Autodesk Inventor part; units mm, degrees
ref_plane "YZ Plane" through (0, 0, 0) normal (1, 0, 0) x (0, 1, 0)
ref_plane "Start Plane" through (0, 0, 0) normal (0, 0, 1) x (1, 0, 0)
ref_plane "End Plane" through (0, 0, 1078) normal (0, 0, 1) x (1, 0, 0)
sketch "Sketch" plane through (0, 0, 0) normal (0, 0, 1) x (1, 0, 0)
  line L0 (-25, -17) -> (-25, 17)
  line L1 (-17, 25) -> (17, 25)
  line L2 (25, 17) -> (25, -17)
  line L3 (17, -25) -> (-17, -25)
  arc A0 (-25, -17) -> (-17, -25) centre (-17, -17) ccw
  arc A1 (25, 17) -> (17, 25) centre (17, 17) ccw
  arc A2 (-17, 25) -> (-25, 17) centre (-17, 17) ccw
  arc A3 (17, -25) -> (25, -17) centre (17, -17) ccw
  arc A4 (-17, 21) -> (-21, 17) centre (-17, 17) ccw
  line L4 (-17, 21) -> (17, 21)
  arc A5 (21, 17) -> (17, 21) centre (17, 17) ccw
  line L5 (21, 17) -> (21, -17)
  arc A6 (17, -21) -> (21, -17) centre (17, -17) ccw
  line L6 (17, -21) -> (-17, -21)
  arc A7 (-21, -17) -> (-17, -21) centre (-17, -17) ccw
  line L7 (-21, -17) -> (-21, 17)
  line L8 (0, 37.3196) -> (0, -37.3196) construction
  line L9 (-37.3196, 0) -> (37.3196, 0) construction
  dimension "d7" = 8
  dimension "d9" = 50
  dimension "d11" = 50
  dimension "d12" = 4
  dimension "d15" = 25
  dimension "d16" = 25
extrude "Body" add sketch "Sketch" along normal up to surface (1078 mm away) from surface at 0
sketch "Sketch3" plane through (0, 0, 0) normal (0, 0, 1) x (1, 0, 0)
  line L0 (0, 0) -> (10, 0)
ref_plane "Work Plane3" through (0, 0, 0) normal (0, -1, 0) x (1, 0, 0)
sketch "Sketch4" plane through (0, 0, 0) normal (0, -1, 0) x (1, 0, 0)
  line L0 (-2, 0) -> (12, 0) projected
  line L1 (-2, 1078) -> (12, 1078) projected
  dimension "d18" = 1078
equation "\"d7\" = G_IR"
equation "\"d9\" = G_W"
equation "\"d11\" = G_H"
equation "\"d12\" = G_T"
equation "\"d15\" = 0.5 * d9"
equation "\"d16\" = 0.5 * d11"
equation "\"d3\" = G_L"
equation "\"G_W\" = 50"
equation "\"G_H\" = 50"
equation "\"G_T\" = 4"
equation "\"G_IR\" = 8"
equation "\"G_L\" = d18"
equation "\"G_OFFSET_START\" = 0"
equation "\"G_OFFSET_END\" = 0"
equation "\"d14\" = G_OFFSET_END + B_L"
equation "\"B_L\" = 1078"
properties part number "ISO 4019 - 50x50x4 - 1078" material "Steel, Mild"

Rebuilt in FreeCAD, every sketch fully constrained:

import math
import FreeCAD as App
import Part
import Sketcher

doc = App.newDocument("Part")
body = doc.addObject("PartDesign::Body", "Body")

sketch1 = body.newObject("Sketcher::SketchObject", "Sketch")
sketch1.AttachmentSupport = (doc.getObject("XY_Plane"), [""])
sketch1.MapMode = "FlatFace"
sketch1.addGeometry([
    Part.LineSegment(App.Vector(-25, 17, 0), App.Vector(-25, -17, 0)),
    Part.ArcOfCircle(Part.Circle(App.Vector(-17, -17, 0), App.Vector(0, 0, 1), 8), math.radians(180), math.radians(270)),
    Part.LineSegment(App.Vector(-17, -25, 0), App.Vector(17, -25, 0)),
    Part.ArcOfCircle(Part.Circle(App.Vector(17, -17, 0), App.Vector(0, 0, 1), 8), math.radians(-90), math.radians(0)),
    Part.LineSegment(App.Vector(25, -17, 0), App.Vector(25, 17, 0)),
    Part.ArcOfCircle(Part.Circle(App.Vector(17, 17, 0), App.Vector(0, 0, 1), 8), math.radians(0), math.radians(90)),
    Part.LineSegment(App.Vector(17, 25, 0), App.Vector(-17, 25, 0)),
    Part.ArcOfCircle(Part.Circle(App.Vector(-17, 17, 0), App.Vector(0, 0, 1), 8), math.radians(90), math.radians(180)),
    Part.ArcOfCircle(Part.Circle(App.Vector(-17, 17, 0), App.Vector(0, 0, 1), 4), math.radians(90), math.radians(180)),
    Part.LineSegment(App.Vector(-17, 21, 0), App.Vector(17, 21, 0)),
    Part.ArcOfCircle(Part.Circle(App.Vector(17, 17, 0), App.Vector(0, 0, 1), 4), math.radians(0), math.radians(90)),
    Part.LineSegment(App.Vector(21, 17, 0), App.Vector(21, -17, 0)),
    Part.ArcOfCircle(Part.Circle(App.Vector(17, -17, 0), App.Vector(0, 0, 1), 4), math.radians(-90), math.radians(0)),
    Part.LineSegment(App.Vector(17, -21, 0), App.Vector(-17, -21, 0)),
    Part.ArcOfCircle(Part.Circle(App.Vector(-17, -17, 0), App.Vector(0, 0, 1), 4), math.radians(180), math.radians(270)),
    Part.LineSegment(App.Vector(-21, -17, 0), App.Vector(-21, 17, 0)),
], False)
sketch1.addConstraint([
    Sketcher.Constraint("Tangent", 0, 2, 1, 1),
    Sketcher.Constraint("Tangent", 1, 2, 2, 1),
    Sketcher.Constraint("Tangent", 2, 2, 3, 1),
    Sketcher.Constraint("Tangent", 3, 2, 4, 1),
    Sketcher.Constraint("Tangent", 4, 2, 5, 1),
    Sketcher.Constraint("Tangent", 5, 2, 6, 1),
    Sketcher.Constraint("Tangent", 6, 2, 7, 1),
    Sketcher.Constraint("Tangent", 7, 2, 0, 1),
    Sketcher.Constraint("Tangent", 8, 1, 9, 1),
    Sketcher.Constraint("Tangent", 9, 2, 10, 2),
    Sketcher.Constraint("Tangent", 10, 1, 11, 1),
    Sketcher.Constraint("Tangent", 11, 2, 12, 2),
    Sketcher.Constraint("Tangent", 12, 1, 13, 1),
    Sketcher.Constraint("Tangent", 13, 2, 14, 2),
    Sketcher.Constraint("Tangent", 14, 1, 15, 1),
    Sketcher.Constraint("Tangent", 15, 2, 8, 2),
    Sketcher.Constraint("Vertical", 0),
    Sketcher.Constraint("Horizontal", 2),
    Sketcher.Constraint("Vertical", 4),
    Sketcher.Constraint("Horizontal", 6),
    Sketcher.Constraint("Horizontal", 9),
    Sketcher.Constraint("Vertical", 11),
    Sketcher.Constraint("Horizontal", 13),
    Sketcher.Constraint("Vertical", 15),
    Sketcher.Constraint("Coincident", 8, 3, 7, 3),
    Sketcher.Constraint("Coincident", 10, 3, 5, 3),
    Sketcher.Constraint("Coincident", 12, 3, 3, 3),
    Sketcher.Constraint("Equal", 1, 3),
    Sketcher.Constraint("Equal", 3, 5),
    Sketcher.Constraint("Equal", 5, 7),
    Sketcher.Constraint("Equal", 12, 14),
    Sketcher.Constraint("Symmetric", 1, 3, 5, 3, -1, 1),
    Sketcher.Constraint("Equal", 13, 0),
    Sketcher.Constraint("Radius", 1, 8.0),
    Sketcher.Constraint("Radius", 8, 4.0),
    Sketcher.Constraint("DistanceX", 0, 2, -1, 1, 25.0),
])
pad1 = body.newObject("PartDesign::Pad", "Pad")
pad1.Profile = sketch1
pad1.Length = 1078

doc.recompute()
